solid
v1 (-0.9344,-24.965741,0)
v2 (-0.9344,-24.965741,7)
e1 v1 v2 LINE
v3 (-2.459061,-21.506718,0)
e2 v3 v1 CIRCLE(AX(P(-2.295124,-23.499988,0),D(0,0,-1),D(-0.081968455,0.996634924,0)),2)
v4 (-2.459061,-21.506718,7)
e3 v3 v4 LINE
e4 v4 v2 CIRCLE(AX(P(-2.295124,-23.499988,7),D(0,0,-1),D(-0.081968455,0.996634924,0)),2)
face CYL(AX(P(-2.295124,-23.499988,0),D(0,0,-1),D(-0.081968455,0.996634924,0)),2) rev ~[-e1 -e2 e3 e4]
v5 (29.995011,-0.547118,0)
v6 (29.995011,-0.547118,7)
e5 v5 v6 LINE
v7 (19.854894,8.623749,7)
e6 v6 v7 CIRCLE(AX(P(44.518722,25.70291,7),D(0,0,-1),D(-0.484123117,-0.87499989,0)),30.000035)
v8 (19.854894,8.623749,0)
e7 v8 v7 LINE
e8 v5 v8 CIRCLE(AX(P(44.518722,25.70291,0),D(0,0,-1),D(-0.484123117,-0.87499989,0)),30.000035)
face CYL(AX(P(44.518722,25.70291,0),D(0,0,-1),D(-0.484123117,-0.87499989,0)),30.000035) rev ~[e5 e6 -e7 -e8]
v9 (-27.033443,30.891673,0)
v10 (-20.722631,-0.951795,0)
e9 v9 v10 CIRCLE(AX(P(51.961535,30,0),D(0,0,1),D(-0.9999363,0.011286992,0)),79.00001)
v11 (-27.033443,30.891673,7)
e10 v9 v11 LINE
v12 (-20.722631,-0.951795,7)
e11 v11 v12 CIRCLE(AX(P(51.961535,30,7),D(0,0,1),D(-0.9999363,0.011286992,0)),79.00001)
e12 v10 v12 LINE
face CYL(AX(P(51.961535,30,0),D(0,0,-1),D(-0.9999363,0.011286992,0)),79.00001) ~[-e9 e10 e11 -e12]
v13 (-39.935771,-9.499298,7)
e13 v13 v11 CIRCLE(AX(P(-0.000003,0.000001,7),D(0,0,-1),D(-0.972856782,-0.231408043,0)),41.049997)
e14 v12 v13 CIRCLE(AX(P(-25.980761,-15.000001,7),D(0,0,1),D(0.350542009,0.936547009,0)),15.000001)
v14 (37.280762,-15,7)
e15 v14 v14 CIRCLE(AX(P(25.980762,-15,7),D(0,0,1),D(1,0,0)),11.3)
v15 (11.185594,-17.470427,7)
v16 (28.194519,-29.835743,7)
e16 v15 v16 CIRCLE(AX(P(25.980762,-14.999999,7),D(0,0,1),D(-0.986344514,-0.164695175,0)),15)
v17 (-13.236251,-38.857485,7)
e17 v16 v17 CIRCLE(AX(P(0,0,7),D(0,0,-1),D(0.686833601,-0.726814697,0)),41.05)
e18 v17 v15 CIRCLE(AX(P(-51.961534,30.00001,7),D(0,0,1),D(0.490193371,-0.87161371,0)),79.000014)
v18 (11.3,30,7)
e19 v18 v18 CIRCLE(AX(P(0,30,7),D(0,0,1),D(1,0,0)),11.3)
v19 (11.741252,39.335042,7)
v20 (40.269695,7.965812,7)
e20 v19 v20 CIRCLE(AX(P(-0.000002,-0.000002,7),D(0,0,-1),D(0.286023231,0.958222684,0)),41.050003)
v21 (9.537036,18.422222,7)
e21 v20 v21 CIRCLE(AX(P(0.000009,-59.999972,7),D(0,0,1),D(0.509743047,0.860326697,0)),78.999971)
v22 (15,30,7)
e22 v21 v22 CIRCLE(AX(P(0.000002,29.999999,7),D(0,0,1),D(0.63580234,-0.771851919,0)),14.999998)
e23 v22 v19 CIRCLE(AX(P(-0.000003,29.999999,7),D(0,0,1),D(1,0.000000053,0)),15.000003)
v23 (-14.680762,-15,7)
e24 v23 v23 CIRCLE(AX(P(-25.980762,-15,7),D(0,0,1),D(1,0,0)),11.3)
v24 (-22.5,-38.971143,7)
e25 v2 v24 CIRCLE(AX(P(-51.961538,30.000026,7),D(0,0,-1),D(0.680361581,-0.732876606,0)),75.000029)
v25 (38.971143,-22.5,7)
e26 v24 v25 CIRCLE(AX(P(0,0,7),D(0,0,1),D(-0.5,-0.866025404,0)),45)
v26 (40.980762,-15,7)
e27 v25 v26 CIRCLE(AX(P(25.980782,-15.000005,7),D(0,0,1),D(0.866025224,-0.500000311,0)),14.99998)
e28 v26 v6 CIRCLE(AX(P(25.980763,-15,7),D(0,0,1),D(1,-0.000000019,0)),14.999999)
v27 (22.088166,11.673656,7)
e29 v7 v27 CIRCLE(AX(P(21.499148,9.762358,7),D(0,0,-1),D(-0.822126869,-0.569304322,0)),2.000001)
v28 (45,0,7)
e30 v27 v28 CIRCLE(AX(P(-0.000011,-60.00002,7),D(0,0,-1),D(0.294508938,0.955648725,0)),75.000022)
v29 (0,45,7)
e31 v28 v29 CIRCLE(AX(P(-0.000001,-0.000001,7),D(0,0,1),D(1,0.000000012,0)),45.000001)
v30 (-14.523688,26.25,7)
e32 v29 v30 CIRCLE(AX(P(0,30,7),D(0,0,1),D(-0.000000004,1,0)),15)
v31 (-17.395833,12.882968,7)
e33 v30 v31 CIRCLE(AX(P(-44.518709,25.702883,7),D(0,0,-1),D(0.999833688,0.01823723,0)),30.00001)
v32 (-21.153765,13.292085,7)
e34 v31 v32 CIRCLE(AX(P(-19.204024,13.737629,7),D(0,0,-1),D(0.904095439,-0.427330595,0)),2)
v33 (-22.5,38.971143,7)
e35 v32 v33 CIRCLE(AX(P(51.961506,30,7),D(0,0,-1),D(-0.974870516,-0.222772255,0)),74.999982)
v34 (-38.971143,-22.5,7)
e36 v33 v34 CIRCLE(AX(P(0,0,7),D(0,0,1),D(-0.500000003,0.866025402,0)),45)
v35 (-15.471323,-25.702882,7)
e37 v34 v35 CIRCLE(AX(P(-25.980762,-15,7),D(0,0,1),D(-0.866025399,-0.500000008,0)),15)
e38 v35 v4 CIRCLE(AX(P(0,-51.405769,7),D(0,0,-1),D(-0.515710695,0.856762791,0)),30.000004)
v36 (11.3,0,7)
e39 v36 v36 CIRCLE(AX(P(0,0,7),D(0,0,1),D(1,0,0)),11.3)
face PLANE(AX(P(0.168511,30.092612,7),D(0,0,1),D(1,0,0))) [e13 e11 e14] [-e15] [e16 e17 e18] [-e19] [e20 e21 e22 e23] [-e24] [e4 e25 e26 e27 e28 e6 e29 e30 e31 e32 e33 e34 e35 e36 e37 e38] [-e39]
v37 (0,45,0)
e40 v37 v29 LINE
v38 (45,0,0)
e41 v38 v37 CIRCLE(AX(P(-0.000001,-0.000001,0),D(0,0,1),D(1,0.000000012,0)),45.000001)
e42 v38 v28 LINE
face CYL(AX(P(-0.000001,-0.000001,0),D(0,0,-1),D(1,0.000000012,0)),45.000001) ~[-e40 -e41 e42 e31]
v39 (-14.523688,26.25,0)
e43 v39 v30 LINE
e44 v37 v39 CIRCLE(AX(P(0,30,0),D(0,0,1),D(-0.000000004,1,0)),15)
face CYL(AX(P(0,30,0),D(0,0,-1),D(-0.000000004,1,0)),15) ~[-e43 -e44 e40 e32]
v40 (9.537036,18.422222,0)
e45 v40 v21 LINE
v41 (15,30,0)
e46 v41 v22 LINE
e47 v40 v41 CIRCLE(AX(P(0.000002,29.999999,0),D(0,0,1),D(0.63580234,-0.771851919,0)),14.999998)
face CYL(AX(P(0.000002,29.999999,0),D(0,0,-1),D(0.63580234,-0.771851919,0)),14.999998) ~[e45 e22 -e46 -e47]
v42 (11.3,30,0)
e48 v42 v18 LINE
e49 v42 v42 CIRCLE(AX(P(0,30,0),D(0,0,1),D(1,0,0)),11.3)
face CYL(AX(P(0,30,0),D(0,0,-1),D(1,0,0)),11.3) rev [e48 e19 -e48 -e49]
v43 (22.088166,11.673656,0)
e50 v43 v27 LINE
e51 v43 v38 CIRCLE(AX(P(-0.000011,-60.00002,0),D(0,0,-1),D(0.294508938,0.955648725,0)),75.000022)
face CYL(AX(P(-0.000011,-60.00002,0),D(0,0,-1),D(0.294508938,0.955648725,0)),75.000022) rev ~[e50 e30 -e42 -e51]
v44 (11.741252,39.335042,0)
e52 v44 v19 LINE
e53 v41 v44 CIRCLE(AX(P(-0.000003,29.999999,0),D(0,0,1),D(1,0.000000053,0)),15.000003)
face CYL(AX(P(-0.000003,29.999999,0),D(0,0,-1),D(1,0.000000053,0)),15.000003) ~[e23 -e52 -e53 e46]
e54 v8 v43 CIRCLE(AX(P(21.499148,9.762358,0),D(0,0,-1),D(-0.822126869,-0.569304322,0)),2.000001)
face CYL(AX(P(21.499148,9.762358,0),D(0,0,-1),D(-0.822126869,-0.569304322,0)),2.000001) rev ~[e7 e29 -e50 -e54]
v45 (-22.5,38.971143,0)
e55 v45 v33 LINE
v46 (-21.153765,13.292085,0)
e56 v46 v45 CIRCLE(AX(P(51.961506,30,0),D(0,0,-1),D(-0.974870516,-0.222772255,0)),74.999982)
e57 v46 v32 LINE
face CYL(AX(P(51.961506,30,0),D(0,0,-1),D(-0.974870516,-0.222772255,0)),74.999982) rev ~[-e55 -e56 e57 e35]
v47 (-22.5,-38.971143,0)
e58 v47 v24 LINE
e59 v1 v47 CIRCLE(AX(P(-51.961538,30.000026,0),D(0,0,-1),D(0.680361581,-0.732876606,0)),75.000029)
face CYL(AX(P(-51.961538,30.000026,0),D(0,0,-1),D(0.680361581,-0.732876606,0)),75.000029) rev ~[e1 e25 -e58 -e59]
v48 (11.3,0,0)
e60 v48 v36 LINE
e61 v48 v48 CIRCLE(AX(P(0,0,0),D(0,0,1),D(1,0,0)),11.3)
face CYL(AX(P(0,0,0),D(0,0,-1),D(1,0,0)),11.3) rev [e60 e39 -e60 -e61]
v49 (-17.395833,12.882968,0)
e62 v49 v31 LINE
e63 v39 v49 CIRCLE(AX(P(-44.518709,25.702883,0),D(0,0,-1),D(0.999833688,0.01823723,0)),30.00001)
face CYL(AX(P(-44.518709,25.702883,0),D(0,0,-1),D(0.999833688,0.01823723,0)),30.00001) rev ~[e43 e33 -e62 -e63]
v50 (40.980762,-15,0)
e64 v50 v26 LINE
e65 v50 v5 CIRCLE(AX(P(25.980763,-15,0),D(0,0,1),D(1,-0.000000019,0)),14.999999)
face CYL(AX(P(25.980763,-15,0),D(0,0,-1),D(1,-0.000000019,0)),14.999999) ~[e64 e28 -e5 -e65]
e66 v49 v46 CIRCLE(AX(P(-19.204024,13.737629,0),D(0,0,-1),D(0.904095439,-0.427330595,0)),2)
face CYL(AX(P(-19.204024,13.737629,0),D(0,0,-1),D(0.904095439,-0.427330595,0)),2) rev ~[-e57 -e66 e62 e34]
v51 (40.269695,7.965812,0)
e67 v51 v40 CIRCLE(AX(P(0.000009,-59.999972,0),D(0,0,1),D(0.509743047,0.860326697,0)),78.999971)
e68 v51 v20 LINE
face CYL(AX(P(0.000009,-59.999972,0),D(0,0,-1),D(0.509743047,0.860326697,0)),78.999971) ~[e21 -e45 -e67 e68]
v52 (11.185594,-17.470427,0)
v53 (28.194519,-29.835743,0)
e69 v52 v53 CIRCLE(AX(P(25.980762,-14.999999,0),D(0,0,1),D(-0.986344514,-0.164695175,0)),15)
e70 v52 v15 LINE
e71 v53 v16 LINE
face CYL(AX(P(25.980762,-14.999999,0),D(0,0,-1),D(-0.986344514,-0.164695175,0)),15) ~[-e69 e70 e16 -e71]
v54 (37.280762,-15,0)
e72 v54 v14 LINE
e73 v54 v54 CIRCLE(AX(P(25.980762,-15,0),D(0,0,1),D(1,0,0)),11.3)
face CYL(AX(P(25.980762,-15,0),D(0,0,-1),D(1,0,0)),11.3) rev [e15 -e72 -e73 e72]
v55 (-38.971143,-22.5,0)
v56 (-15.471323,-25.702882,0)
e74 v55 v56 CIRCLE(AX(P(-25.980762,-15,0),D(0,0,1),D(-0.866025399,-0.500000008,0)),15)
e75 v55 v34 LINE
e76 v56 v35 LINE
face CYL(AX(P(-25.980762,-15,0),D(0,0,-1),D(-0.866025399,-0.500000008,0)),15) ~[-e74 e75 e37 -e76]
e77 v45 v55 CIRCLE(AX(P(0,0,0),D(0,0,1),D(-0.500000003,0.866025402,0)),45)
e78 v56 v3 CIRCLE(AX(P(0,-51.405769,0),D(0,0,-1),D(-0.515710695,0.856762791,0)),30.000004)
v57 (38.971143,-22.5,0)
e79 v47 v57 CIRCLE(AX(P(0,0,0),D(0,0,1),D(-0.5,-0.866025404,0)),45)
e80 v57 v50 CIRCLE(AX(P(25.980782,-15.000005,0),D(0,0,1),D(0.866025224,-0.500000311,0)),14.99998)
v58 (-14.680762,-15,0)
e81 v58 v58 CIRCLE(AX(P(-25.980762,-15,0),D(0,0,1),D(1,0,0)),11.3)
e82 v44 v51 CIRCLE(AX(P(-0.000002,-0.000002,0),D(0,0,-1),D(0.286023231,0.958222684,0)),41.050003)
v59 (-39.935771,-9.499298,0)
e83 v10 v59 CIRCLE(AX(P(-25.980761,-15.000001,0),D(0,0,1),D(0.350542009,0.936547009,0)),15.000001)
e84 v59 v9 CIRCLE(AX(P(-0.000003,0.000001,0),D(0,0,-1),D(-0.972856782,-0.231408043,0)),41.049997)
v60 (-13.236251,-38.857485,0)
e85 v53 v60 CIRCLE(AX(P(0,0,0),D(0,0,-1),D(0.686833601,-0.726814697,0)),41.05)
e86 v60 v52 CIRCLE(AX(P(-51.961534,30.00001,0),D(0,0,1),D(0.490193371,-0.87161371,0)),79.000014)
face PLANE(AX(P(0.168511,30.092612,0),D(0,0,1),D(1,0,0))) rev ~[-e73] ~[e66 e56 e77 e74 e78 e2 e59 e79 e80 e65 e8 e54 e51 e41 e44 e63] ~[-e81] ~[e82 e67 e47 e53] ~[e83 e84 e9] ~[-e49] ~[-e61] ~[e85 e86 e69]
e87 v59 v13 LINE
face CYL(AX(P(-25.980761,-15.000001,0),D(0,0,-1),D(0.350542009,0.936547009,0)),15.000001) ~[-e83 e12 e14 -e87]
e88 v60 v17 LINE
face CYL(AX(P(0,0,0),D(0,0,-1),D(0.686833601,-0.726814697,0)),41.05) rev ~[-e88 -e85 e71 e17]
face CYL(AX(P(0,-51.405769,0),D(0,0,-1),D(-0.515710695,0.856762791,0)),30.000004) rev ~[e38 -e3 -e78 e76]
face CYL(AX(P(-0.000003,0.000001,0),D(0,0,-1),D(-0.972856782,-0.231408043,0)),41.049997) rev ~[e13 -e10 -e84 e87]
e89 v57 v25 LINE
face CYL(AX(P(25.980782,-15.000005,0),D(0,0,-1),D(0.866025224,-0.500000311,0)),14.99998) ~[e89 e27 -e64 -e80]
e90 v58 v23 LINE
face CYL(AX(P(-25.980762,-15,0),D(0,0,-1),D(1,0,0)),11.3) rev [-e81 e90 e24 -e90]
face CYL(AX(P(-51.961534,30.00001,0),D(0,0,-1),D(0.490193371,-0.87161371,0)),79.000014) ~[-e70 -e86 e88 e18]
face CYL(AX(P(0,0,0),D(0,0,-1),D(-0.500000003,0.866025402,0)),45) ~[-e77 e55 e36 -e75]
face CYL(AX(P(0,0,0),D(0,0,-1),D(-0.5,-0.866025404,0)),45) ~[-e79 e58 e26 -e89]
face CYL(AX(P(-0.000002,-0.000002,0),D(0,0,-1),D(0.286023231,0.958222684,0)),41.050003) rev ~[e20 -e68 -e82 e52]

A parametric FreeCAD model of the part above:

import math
import FreeCAD as App
import Part
import Sketcher

doc = App.newDocument("Part")
body = doc.addObject("PartDesign::Body", "Body")

# Sketch on XY plane
sketch1 = body.newObject("Sketcher::SketchObject", "Sketch")
sketch1.AttachmentSupport = (doc.getObject("XY_Plane"), [""])
sketch1.MapMode = "FlatFace"
sketch1.addGeometry(Part.ArcOfCircle(Part.Circle(App.Vector(0, 30, 0), App.Vector(0, 0, 1), 15), math.radians(90), math.radians(194.47751)), False)
sketch1.addGeometry(Part.ArcOfCircle(Part.Circle(App.Vector(-44.518709, 25.702883, 0), App.Vector(0, 0, 1), 30.00001), math.radians(-25.298256), math.radians(1.044974)), False)
sketch1.addGeometry(Part.ArcOfCircle(Part.Circle(App.Vector(-19.204024, 13.737629, 0), App.Vector(0, 0, 1), 2), math.radians(-167.128096), math.radians(-25.298272)), False)
sketch1.addGeometry(Part.ArcOfCircle(Part.Circle(App.Vector(51.961506, 30, 0), App.Vector(0, 0, 1), 74.999982), math.radians(173.130101), math.radians(192.871913)), False)
sketch1.addGeometry(Part.ArcOfCircle(Part.Circle(App.Vector(0, 0, 0), App.Vector(0, 0, 1), 45), math.radians(120), math.radians(210)), False)
sketch1.addGeometry(Part.ArcOfCircle(Part.Circle(App.Vector(-25.980762, -15, 0), App.Vector(0, 0, 1), 15), math.radians(-149.999999), math.radians(-45.522487)), False)
sketch1.addGeometry(Part.ArcOfCircle(Part.Circle(App.Vector(0, -51.405769, 0), App.Vector(0, 0, 1), 30.000004), math.radians(94.701735), math.radians(121.044971)), False)
sketch1.addGeometry(Part.ArcOfCircle(Part.Circle(App.Vector(-2.295124, -23.499988, 0), App.Vector(0, 0, 1), 2), math.radians(-47.128069), math.radians(94.701722)), False)
sketch1.addGeometry(Part.ArcOfCircle(Part.Circle(App.Vector(-51.961538, 30.000026, 0), App.Vector(0, 0, 1), 75.000029), math.radians(-66.869895), math.radians(-47.128095)), False)
sketch1.addGeometry(Part.ArcOfCircle(Part.Circle(App.Vector(0, 0, 0), App.Vector(0, 0, 1), 45), math.radians(-120), math.radians(-30)), False)
sketch1.addGeometry(Part.ArcOfCircle(Part.Circle(App.Vector(25.980782, -15.000005, 0), App.Vector(0, 0, 1), 14.99998), math.radians(-30.000021), math.radians(0.00002)), False)
sketch1.addGeometry(Part.ArcOfCircle(Part.Circle(App.Vector(25.980763, -15, 0), App.Vector(0, 0, 1), 14.999999), math.radians(-0.000001), math.radians(74.477512)), False)
sketch1.addGeometry(Part.ArcOfCircle(Part.Circle(App.Vector(44.518722, 25.70291, 0), App.Vector(0, 0, 1), 30.000035), math.radians(-145.298247), math.radians(-118.955037)), False)
sketch1.addGeometry(Part.ArcOfCircle(Part.Circle(App.Vector(21.499148, 9.762358, 0), App.Vector(0, 0, 1), 2.000001), math.radians(72.871913), math.radians(214.701728)), False)
sketch1.addGeometry(Part.ArcOfCircle(Part.Circle(App.Vector(-0.000011, -60.00002, 0), App.Vector(0, 0, 1), 75.000022), math.radians(53.130105), math.radians(72.871906)), False)
sketch1.addGeometry(Part.ArcOfCircle(Part.Circle(App.Vector(-0.000001, -0.000001, 0), App.Vector(0, 0, 1), 45.000001), math.radians(0.000001), math.radians(89.999999)), False)
sketch1.addGeometry(Part.Circle(App.Vector(-25.980762, -15, 0), App.Vector(0, 0, 1), 11.3), False)
sketch1.addGeometry(Part.ArcOfCircle(Part.Circle(App.Vector(-51.961534, 30.00001, 0), App.Vector(0, 0, 1), 79.000014), math.radians(-60.646708), math.radians(-36.933774)), False)
sketch1.addGeometry(Part.ArcOfCircle(Part.Circle(App.Vector(25.980762, -14.999999, 0), App.Vector(0, 0, 1), 15), math.radians(-170.520473), math.radians(-81.51307)), False)
sketch1.addGeometry(Part.ArcOfCircle(Part.Circle(App.Vector(0, 0, 0), App.Vector(0, 0, 1), 41.05), math.radians(-108.810681), math.radians(-46.620019)), False)
sketch1.addGeometry(Part.Circle(App.Vector(0, 0, 0), App.Vector(0, 0, 1), 11.3), False)
sketch1.addGeometry(Part.Circle(App.Vector(25.980762, -15, 0), App.Vector(0, 0, 1), 11.3), False)
sketch1.addGeometry(Part.ArcOfCircle(Part.Circle(App.Vector(-0.000003, 0.000001, 0), App.Vector(0, 0, 1), 41.049997), math.radians(131.189315), math.radians(193.379983)), False)
sketch1.addGeometry(Part.ArcOfCircle(Part.Circle(App.Vector(51.961535, 30, 0), App.Vector(0, 0, 1), 79.00001), math.radians(179.353289), math.radians(203.066225)), False)
sketch1.addGeometry(Part.ArcOfCircle(Part.Circle(App.Vector(-25.980761, -15.000001, 0), App.Vector(0, 0, 1), 15.000001), math.radians(69.47953), math.radians(158.486927)), False)
sketch1.addGeometry(Part.Circle(App.Vector(0, 30, 0), App.Vector(0, 0, 1), 11.3), False)
sketch1.addGeometry(Part.ArcOfCircle(Part.Circle(App.Vector(0.000002, 29.999999, 0), App.Vector(0, 0, 1), 14.999998), math.radians(-50.520482), math.radians(0.000004)), False)
sketch1.addGeometry(Part.ArcOfCircle(Part.Circle(App.Vector(-0.000003, 29.999999, 0), App.Vector(0, 0, 1), 15.000003), math.radians(0.000003), math.radians(38.486926)), False)
sketch1.addGeometry(Part.ArcOfCircle(Part.Circle(App.Vector(-0.000002, -0.000002, 0), App.Vector(0, 0, 1), 41.050003), math.radians(11.189319), math.radians(73.379978)), False)
sketch1.addGeometry(Part.ArcOfCircle(Part.Circle(App.Vector(0.000009, -59.999972, 0), App.Vector(0, 0, 1), 78.999971), math.radians(59.353284), math.radians(83.066233)), False)
sketch1.addConstraint(Sketcher.Constraint("Coincident", 0, 2, 1, 2))
sketch1.addConstraint(Sketcher.Constraint("Coincident", 1, 1, 2, 2))
sketch1.addConstraint(Sketcher.Constraint("Coincident", 2, 1, 3, 2))
sketch1.addConstraint(Sketcher.Constraint("Coincident", 3, 1, 4, 1))
sketch1.addConstraint(Sketcher.Constraint("Coincident", 4, 2, 5, 1))
sketch1.addConstraint(Sketcher.Constraint("Coincident", 5, 2, 6, 2))
sketch1.addConstraint(Sketcher.Constraint("Coincident", 6, 1, 7, 2))
sketch1.addConstraint(Sketcher.Constraint("Coincident", 7, 1, 8, 2))
sketch1.addConstraint(Sketcher.Constraint("Coincident", 8, 1, 9, 1))
sketch1.addConstraint(Sketcher.Constraint("Coincident", 9, 2, 10, 1))
sketch1.addConstraint(Sketcher.Constraint("Coincident", 10, 2, 11, 1))
sketch1.addConstraint(Sketcher.Constraint("Coincident", 11, 2, 12, 2))
sketch1.addConstraint(Sketcher.Constraint("Coincident", 12, 1, 13, 2))
sketch1.addConstraint(Sketcher.Constraint("Coincident", 13, 1, 14, 2))
sketch1.addConstraint(Sketcher.Constraint("Coincident", 14, 1, 15, 1))
sketch1.addConstraint(Sketcher.Constraint("Coincident", 15, 2, 0, 1))
sketch1.addConstraint(Sketcher.Constraint("Coincident", 17, 2, 18, 1))
sketch1.addConstraint(Sketcher.Constraint("Coincident", 18, 2, 19, 2))
sketch1.addConstraint(Sketcher.Constraint("Coincident", 19, 1, 17, 1))
sketch1.addConstraint(Sketcher.Constraint("Coincident", 22, 1, 23, 1))
sketch1.addConstraint(Sketcher.Constraint("Coincident", 23, 2, 24, 1))
sketch1.addConstraint(Sketcher.Constraint("Coincident", 24, 2, 22, 2))
sketch1.addConstraint(Sketcher.Constraint("Coincident", 26, 2, 27, 1))
sketch1.addConstraint(Sketcher.Constraint("Coincident", 27, 2, 28, 2))
sketch1.addConstraint(Sketcher.Constraint("Coincident", 28, 1, 29, 1))
sketch1.addConstraint(Sketcher.Constraint("Coincident", 29, 2, 26, 1))
sketch1.addConstraint(Sketcher.Constraint("Coincident", 4, 3, -1, 1))
sketch1.addConstraint(Sketcher.Constraint("Coincident", 9, 3, -1, 1))
sketch1.addConstraint(Sketcher.Constraint("Coincident", 15, 3, -1, 1))
sketch1.addConstraint(Sketcher.Constraint("Coincident", 19, 3, -1, 1))
sketch1.addConstraint(Sketcher.Constraint("Coincident", 20, 3, -1, 1))
sketch1.addConstraint(Sketcher.Constraint("Coincident", 22, 3, -1, 1))
sketch1.addConstraint(Sketcher.Constraint("Coincident", 28, 3, -1, 1))
sketch1.addConstraint(Sketcher.Constraint("Coincident", 16, 3, 5, 3))
sketch1.addConstraint(Sketcher.Constraint("Coincident", 18, 3, 11, 3))
sketch1.addConstraint(Sketcher.Constraint("Coincident", 21, 3, 11, 3))
sketch1.addConstraint(Sketcher.Constraint("Coincident", 24, 3, 5, 3))
sketch1.addConstraint(Sketcher.Constraint("Coincident", 25, 3, 0, 3))
sketch1.addConstraint(Sketcher.Constraint("Coincident", 26, 3, 0, 3))
sketch1.addConstraint(Sketcher.Constraint("Coincident", 27, 3, 0, 3))
sketch1.addConstraint(Sketcher.Constraint("PointOnObject", 0, 3, -2))
sketch1.addConstraint(Sketcher.Constraint("PointOnObject", 6, 3, -2))
sketch1.addConstraint(Sketcher.Constraint("PointOnObject", 14, 1, -1))
sketch1.addConstraint(Sketcher.Constraint("PointOnObject", 15, 2, -2))
sketch1.addConstraint(Sketcher.Constraint("Radius", 0, 15.0))
sketch1.addConstraint(Sketcher.Constraint("Radius", 2, 2.0))
sketch1.addConstraint(Sketcher.Constraint("Radius", 4, 45.0))
sketch1.addConstraint(Sketcher.Constraint("Radius", 5, 15.0))
sketch1.addConstraint(Sketcher.Constraint("Radius", 7, 2.0))
sketch1.addConstraint(Sketcher.Constraint("Radius", 9, 45.0))
sketch1.addConstraint(Sketcher.Constraint("Radius", 11, 14.999999))
sketch1.addConstraint(Sketcher.Constraint("Radius", 13, 2.000001))
sketch1.addConstraint(Sketcher.Constraint("Radius", 15, 45.000001))
sketch1.addConstraint(Sketcher.Constraint("Radius", 18, 15.0))
sketch1.addConstraint(Sketcher.Constraint("Radius", 24, 15.000001))
sketch1.addConstraint(Sketcher.Constraint("Diameter", 16, 22.6))
sketch1.addConstraint(Sketcher.Constraint("Diameter", 20, 22.6))
sketch1.addConstraint(Sketcher.Constraint("Diameter", 21, 22.6))
sketch1.addConstraint(Sketcher.Constraint("Diameter", 25, 22.6))
sketch1.addConstraint(Sketcher.Constraint("Radius", 19, 41.05))
sketch1.addConstraint(Sketcher.Constraint("DistanceY", -1, 1, 3, 3, 30.0))
sketch1.addConstraint(Sketcher.Constraint("DistanceY", 5, 3, -1, 1, 15.0))
sketch1.addConstraint(Sketcher.Constraint("DistanceY", 11, 3, -1, 1, 15.0))
sketch1.addConstraint(Sketcher.Constraint("DistanceY", -1, 1, 23, 3, 30.0))
sketch1.addConstraint(Sketcher.Constraint("DistanceY", 10, 2, -1, 1, 15.0))
sketch1.addConstraint(Sketcher.Constraint("DistanceX", -1, 1, 26, 2, 15.0))
sketch1.addConstraint(Sketcher.Constraint("DistanceY", -1, 1, 26, 2, 30.0))
sketch1.addConstraint(Sketcher.Constraint("DistanceX", 3, 1, -1, 1, 22.5))
sketch1.addConstraint(Sketcher.Constraint("DistanceY", 4, 2, -1, 1, 22.5))
sketch1.addConstraint(Sketcher.Constraint("DistanceX", 8, 1, -1, 1, 22.5))
sketch1.addConstraint(Sketcher.Constraint("DistanceY", 9, 2, -1, 1, 22.5))
sketch1.addConstraint(Sketcher.Constraint("DistanceY", -1, 1, 0, 2, 26.25))
sketch1.addConstraint(Sketcher.Constraint("Radius", 1, 30.00001))
sketch1.addConstraint(Sketcher.Constraint("Radius", 8, 75.000029))
sketch1.addConstraint(Sketcher.Constraint("Radius", 10, 14.99998))
sketch1.addConstraint(Sketcher.Constraint("Radius", 23, 79.00001))
sketch1.addConstraint(Sketcher.Constraint("Radius", 29, 78.999971))
sketch1.addConstraint(Sketcher.Constraint("Radius", 3, 74.999982))
sketch1.addConstraint(Sketcher.Constraint("Radius", 6, 30.000004))
sketch1.addConstraint(Sketcher.Constraint("Radius", 12, 30.000035))
sketch1.addConstraint(Sketcher.Constraint("Radius", 14, 75.000022))
sketch1.addConstraint(Sketcher.Constraint("Radius", 17, 79.000014))
sketch1.addConstraint(Sketcher.Constraint("Radius", 22, 41.049997))
sketch1.addConstraint(Sketcher.Constraint("Radius", 28, 41.050003))
sketch1.addConstraint(Sketcher.Constraint("DistanceX", 7, 1, -1, 1, 0.9344))
sketch1.addConstraint(Sketcher.Constraint("DistanceY", 6, 3, 2, 3, 65.143398))
sketch1.addConstraint(Sketcher.Constraint("DistanceX", 2, 3, 7, 3, 16.9089))
sketch1.addConstraint(Sketcher.Constraint("DistanceX", 5, 2, 7, 3, 13.176199))
sketch1.addConstraint(Sketcher.Constraint("DistanceY", 13, 3, 13, 1, 1.911298))
sketch1.addConstraint(Sketcher.Constraint("DistanceX", 23, 2, 1, 1, 3.326798))
sketch1.addConstraint(Sketcher.Constraint("DistanceX", -1, 1, 10, 3, 25.980782))
sketch1.addConstraint(Sketcher.Constraint("DistanceX", -1, 1, 12, 3, 44.518722))
sketch1.addConstraint(Sketcher.Constraint("DistanceY", -1, 1, 12, 3, 25.70291))
sketch1.addConstraint(Sketcher.Constraint("DistanceX", -1, 1, 13, 3, 21.499148))
sketch1.addConstraint(Sketcher.Constraint("DistanceY", -1, 1, 17, 3, 30.00001))
sketch1.addConstraint(Sketcher.Constraint("DistanceY", 29, 3, -1, 1, 59.999972))
sketch1.addConstraint(Sketcher.Constraint("DistanceX", 6, 1, -1, 1, 2.459061))
sketch1.addConstraint(Sketcher.Constraint("DistanceY", -1, 1, 12, 1, 8.623749))
sketch1.addConstraint(Sketcher.Constraint("DistanceX", 19, 1, -1, 1, 13.236251))
sketch1.addConstraint(Sketcher.Constraint("DistanceX", 23, 2, -1, 1, 20.722631))
sketch1.addConstraint(Sketcher.Constraint("DistanceY", -1, 1, 28, 1, 7.965812))
sketch1.addConstraint(Sketcher.Constraint("DistanceX", 2, 1, 2, 3, 1.949741))
pad1 = body.newObject("PartDesign::Pad", "Pad")
pad1.Profile = sketch1
pad1.Length = 7

doc.recompute()
